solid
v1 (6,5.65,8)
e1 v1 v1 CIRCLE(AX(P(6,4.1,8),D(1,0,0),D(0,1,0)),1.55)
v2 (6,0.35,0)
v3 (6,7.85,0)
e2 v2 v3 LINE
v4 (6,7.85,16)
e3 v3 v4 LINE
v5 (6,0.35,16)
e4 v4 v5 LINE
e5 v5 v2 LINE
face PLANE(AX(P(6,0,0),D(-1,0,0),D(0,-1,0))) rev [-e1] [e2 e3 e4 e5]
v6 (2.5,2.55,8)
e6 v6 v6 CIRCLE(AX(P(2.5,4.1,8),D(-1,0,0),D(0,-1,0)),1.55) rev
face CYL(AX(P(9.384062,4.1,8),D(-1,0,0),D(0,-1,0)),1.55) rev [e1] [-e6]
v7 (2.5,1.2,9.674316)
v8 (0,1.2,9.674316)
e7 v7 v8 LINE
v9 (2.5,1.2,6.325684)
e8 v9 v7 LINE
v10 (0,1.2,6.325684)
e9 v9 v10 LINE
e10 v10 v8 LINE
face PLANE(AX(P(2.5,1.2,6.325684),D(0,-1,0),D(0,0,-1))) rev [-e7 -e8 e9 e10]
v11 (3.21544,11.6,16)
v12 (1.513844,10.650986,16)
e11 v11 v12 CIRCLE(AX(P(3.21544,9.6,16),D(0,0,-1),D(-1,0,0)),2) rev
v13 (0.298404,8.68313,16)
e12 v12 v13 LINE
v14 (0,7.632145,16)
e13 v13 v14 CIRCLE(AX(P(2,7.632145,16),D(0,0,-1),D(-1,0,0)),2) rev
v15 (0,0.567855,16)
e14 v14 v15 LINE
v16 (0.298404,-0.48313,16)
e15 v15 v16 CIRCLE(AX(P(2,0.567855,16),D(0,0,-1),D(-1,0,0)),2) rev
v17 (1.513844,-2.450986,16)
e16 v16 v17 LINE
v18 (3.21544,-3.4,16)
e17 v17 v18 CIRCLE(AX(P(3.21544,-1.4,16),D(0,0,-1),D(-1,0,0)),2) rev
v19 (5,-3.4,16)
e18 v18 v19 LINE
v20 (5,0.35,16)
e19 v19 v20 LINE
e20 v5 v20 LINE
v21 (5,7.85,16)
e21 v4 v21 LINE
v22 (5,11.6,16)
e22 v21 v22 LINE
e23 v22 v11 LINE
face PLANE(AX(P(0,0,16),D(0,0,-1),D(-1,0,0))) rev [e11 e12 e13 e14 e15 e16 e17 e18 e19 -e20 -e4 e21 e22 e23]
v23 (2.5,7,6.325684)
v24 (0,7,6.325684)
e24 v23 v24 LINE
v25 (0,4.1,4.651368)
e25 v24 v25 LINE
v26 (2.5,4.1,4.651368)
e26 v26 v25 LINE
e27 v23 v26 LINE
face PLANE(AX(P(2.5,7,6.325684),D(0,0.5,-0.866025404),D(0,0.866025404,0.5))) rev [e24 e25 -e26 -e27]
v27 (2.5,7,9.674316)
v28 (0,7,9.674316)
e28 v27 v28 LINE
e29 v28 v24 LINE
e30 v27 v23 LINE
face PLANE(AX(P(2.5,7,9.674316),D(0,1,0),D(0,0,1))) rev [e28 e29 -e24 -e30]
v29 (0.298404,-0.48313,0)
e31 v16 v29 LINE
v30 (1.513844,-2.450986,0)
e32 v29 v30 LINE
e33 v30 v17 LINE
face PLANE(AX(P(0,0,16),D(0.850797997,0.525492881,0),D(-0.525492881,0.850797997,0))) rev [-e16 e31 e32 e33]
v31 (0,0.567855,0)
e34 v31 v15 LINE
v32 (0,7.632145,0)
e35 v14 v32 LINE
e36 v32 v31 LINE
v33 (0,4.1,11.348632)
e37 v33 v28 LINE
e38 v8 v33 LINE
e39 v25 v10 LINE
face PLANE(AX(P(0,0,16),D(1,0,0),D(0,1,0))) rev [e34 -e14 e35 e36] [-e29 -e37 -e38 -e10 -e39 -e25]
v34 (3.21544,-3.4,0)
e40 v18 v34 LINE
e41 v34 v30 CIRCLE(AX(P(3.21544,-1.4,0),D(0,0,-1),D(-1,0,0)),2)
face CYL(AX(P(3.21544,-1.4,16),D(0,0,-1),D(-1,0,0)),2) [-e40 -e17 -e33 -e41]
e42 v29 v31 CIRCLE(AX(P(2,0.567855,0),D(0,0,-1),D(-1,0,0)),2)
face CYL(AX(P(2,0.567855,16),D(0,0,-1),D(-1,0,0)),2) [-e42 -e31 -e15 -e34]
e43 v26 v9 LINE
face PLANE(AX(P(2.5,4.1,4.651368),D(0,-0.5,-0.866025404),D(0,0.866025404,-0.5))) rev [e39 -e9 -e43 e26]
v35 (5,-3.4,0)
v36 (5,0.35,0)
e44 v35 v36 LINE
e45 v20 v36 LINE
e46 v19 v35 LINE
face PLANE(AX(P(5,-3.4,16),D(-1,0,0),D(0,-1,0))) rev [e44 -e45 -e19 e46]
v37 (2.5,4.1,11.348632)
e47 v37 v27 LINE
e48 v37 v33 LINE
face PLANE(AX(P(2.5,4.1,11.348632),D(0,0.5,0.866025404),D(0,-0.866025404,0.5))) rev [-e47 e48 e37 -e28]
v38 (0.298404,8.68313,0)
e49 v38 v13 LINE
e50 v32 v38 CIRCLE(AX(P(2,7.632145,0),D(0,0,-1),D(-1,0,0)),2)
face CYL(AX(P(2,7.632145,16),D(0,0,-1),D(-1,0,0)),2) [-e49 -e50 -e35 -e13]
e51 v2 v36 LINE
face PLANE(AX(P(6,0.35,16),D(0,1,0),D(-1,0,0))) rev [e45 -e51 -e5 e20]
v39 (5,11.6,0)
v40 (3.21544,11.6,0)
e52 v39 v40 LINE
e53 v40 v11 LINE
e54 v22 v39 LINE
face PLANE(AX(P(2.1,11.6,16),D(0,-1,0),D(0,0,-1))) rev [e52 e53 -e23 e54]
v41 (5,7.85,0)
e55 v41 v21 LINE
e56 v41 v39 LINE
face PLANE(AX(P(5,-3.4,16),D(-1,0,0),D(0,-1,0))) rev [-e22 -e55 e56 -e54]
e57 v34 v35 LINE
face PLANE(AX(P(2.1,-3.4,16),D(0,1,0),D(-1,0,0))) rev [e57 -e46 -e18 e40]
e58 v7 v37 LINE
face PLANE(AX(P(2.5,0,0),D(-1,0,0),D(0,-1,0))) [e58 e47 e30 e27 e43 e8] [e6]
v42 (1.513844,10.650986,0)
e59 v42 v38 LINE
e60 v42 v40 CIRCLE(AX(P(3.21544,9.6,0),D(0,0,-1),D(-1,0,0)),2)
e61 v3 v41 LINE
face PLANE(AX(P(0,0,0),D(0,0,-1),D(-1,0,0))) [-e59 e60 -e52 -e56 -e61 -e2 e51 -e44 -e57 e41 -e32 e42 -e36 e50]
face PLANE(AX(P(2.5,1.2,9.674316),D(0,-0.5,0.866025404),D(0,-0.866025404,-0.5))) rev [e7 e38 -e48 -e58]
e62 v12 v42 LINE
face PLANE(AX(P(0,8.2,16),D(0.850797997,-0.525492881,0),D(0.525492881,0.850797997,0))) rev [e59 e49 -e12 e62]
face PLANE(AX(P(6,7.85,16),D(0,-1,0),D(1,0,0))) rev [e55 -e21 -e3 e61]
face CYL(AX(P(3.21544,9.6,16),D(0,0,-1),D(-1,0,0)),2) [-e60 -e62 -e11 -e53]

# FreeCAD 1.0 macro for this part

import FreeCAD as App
import Part
import Sketcher
Q = App.Units.Quantity


def edges_at(feature, points):
    """Names of the edges that pass closest to the given points."""
    edges = feature.Shape.Edges
    near = lambda p: min(range(len(edges)), key=lambda i: edges[i].distToShape(Part.Vertex(*p))[0])
    return sorted({f"Edge{near(p) + 1}" for p in points})


def add_polygon(sketch, points):
    """Adds a closed chain of lines whose ends are joined by coincident constraints."""
    first, n = sketch.GeometryCount, len(points)
    for a, b in zip(points, points[1:] + points[:1]):
        sketch.addGeometry(Part.LineSegment(App.Vector(*a, 0), App.Vector(*b, 0)), False)
    for i in range(n):
        sketch.addConstraint(Sketcher.Constraint("Coincident", first + i, 2, first + (i + 1) % n, 1))

doc = App.newDocument("Part")
body = doc.addObject("PartDesign::Body", "Body")

sketch1 = doc.addObject("Sketcher::SketchObject", "Sketch")
body.addObject(sketch1)
sketch1.AttachmentSupport = (doc.XY_Plane, [""])
sketch1.MapMode = "FlatFace"
add_polygon(sketch1, [(2.1, -3.4), (5, -3.4), (5, 11.6), (2.1, 11.6), (0, 8.2), (0, 0)])
sketch1.addConstraint([
    Sketcher.Constraint("Horizontal", 0),
    Sketcher.Constraint("Vertical", 1),
    Sketcher.Constraint("Horizontal", 2),
    Sketcher.Constraint("Vertical", 4),
    Sketcher.Constraint("Coincident", 4, 2, -1, 1),
    Sketcher.Constraint("Vertical", 2, 2, 5, 2),
    Sketcher.Constraint("Equal", 3, 5),
    Sketcher.Constraint("DistanceY", 1, 1, 1, 2, Q("15 mm")),
    Sketcher.Constraint("DistanceX", 0, 1, 0, 2, Q("2.9 mm")),
    Sketcher.Constraint("DistanceY", 4, 2, 4, 1, Q("8.2 mm")),
    Sketcher.Constraint("DistanceX", -1, 1, 0, 2, Q("5 mm")),
])
pad1 = doc.addObject("PartDesign::Pad", "Pad")
body.addObject(pad1)
pad1.Profile = sketch1
pad1.Length = 16

sketch2 = doc.addObject("Sketcher::SketchObject", "Sketch001")
body.addObject(sketch2)
sketch2.AttachmentSupport = (doc.YZ_Plane, [""])
sketch2.MapMode = "FlatFace"
sketch2.addGeometry(Part.Circle(App.Vector(4.1, 8, 0), App.Vector(0, 0, 1), 1.6), False)
sketch2.addConstraint([
    Sketcher.Constraint("Diameter", 0, Q("3.1 mm")),
    Sketcher.Constraint("DistanceY", -1, 1, 0, 3, Q("8 mm")),
    Sketcher.Constraint("DistanceX", -1, 1, 0, 3, Q("4.1 mm")),
])
pocket1 = doc.addObject("PartDesign::Pocket", "Pocket")
body.addObject(pocket1)
pocket1.Profile = sketch2
pocket1.Length = 5
pocket1.Reversed = True

sketch3 = doc.addObject("Sketcher::SketchObject", "Sketch002")
body.addObject(sketch3)
sketch3.AttachmentSupport = (doc.YZ_Plane, [""])
sketch3.MapMode = "FlatFace"
add_polygon(sketch3, [(4.1, 11.3), (7, 9.7), (7, 6.3), (4.1, 4.7), (1.2, 6.3), (1.2, 9.7)])
sketch3.addConstraint([
    Sketcher.Constraint("Vertical", 1),
    Sketcher.Constraint("Vertical", 4),
    Sketcher.Constraint("Parallel", 0, 3),
    Sketcher.Constraint("Parallel", 2, 5),
    Sketcher.Constraint("Horizontal", 1, 2, 3, 2),
    Sketcher.Constraint("Horizontal", 0, 2, 4, 2),
    Sketcher.Constraint("Vertical", 2, 2, 5, 2),
    Sketcher.Constraint("Angle", 0, Q("-30 deg")),
    Sketcher.Constraint("DistanceX", -1, 1, 0, 2, Q("7 mm")),
    Sketcher.Constraint("DistanceX", -1, 1, 2, 2, Q("4.1 mm")),
    Sketcher.Constraint("DistanceY", 1, 2, 1, 1, Q("3.348632 mm")),
    Sketcher.Constraint("DistanceY", -1, 1, 2, 2, Q("4.651368 mm")),
])
pocket2 = doc.addObject("PartDesign::Pocket", "Pocket001")
body.addObject(pocket2)
pocket2.Profile = sketch3
pocket2.Length = 2.5
pocket2.Reversed = True
doc.recompute()

fillet = doc.addObject("PartDesign::Fillet", "Fillet")
body.addObject(fillet)
fillet.Base = (pocket2, edges_at(pocket2, [
    (2.1, -3.4, 8),
    (0, 0, 8),
    (0, 8.2, 8),
    (2.1, 11.6, 8),
]))
fillet.Radius = 2

sketch4 = doc.addObject("Sketcher::SketchObject", "Sketch003")
body.addObject(sketch4)
sketch4.AttachmentSupport = (doc.YZ_Plane, [""])
sketch4.MapMode = "FlatFace"
sketch4.AttachmentOffset = App.Placement(App.Vector(0, 0, 5), App.Rotation())
add_polygon(sketch4, [(7.8, 16), (0.3, 16), (0.3, 0), (7.8, 0)])
sketch4.addGeometry(Part.Circle(App.Vector(4.1, 8, 0), App.Vector(0, 0, 1), 1.6), False)
sketch4.addConstraint([
    Sketcher.Constraint("Horizontal", 0),
    Sketcher.Constraint("Vertical", 1),
    Sketcher.Constraint("Horizontal", 2),
    Sketcher.Constraint("Vertical", 3),
    Sketcher.Constraint("PointOnObject", 1, 2, -1),
    Sketcher.Constraint("Diameter", 4, Q("3.1 mm")),
    Sketcher.Constraint("DistanceY", 1, 2, 1, 1, Q("16 mm")),
    Sketcher.Constraint("DistanceX", 0, 2, 0, 1, Q("7.5 mm")),
    Sketcher.Constraint("DistanceY", -1, 1, 4, 3, Q("8 mm")),
    Sketcher.Constraint("DistanceX", -1, 1, 4, 3, Q("4.1 mm")),
    Sketcher.Constraint("DistanceX", -1, 1, 0, 2, Q("0.35 mm")),
])
pad2 = doc.addObject("PartDesign::Pad", "Pad001")
body.addObject(pad2)
pad2.Profile = sketch4
pad2.Length = 1

doc.recompute()
